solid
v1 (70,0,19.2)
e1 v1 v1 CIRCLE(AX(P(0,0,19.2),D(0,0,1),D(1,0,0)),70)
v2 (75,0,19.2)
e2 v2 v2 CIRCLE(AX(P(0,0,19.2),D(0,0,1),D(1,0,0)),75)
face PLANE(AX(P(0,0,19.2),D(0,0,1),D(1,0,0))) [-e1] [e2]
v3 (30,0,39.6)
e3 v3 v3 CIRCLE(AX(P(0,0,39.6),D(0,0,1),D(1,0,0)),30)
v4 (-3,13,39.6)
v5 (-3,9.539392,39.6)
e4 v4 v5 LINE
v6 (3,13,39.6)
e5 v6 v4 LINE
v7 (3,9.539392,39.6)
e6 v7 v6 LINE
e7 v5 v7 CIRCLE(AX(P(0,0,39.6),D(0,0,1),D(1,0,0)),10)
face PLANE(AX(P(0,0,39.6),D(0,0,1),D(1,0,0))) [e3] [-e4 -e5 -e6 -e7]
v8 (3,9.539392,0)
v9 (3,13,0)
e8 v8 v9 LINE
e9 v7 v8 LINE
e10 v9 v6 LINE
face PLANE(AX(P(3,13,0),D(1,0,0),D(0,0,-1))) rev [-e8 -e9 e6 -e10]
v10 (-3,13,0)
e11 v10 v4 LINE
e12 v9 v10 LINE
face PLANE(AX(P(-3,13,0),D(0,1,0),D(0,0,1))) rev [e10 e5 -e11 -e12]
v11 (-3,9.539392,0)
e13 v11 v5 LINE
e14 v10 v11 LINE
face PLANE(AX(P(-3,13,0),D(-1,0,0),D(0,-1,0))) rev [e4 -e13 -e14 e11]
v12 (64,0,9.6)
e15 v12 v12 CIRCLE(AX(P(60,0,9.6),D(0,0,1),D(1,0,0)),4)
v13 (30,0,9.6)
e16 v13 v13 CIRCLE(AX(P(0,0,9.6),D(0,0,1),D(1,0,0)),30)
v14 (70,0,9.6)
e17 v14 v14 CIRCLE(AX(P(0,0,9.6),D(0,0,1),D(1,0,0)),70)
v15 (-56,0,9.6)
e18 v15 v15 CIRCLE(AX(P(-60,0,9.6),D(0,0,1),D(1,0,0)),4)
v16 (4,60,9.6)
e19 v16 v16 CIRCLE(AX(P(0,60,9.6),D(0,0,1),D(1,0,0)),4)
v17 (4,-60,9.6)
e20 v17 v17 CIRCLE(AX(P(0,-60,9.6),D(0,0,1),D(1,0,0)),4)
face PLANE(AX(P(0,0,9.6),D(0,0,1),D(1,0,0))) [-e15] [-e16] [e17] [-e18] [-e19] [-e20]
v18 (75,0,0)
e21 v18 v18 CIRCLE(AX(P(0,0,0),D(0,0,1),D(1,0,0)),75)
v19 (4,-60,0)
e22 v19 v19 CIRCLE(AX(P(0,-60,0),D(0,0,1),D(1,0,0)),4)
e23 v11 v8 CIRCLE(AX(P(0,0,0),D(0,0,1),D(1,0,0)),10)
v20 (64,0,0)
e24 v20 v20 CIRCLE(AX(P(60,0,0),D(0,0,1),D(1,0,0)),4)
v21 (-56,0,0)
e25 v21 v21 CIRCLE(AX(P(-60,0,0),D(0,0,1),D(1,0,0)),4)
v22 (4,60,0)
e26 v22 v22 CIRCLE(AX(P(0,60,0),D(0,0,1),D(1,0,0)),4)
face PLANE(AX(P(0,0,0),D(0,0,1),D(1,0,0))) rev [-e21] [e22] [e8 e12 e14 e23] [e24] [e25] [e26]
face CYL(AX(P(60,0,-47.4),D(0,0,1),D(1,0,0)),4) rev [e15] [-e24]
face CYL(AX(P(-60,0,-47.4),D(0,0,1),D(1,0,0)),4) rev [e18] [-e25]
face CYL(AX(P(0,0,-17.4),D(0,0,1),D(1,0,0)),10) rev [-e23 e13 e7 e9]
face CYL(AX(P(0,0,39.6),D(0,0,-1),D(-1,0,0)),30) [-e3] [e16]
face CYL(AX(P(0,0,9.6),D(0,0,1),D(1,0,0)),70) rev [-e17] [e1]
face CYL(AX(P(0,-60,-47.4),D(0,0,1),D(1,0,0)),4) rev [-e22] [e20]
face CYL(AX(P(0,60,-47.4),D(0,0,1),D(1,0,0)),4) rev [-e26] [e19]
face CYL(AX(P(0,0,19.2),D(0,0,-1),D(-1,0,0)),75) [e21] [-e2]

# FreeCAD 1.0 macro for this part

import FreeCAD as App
import Part
import Sketcher
from FreeCAD import Vector


def add_polygon(sketch, points):
    """Adds a closed chain of lines whose ends are joined by coincident constraints."""
    first, n = sketch.GeometryCount, len(points)
    for a, b in zip(points, points[1:] + points[:1]):
        sketch.addGeometry(Part.LineSegment(App.Vector(*a, 0), App.Vector(*b, 0)), False)
    for i in range(n):
        sketch.addConstraint(Sketcher.Constraint("Coincident", first + i, 2, first + (i + 1) % n, 1))

doc = App.newDocument("Part")
params = doc.addObject("Spreadsheet::Sheet", "Params")
for row, (alias, value) in enumerate([
    ("sketch1_diameter", "150 mm"),
    ("pad1_length", "19.2 mm"),
    ("sketch2_diameter", "140 mm"),
    ("pocket1_length", "9.6 mm"),
    ("sketch3_diameter", "60 mm"),
    ("pad2_length", "30 mm"),
    ("sketch4_diameter", "20 mm"),
    ("pocket2_length", "57 mm"),
    ("sketch5_diameter", "8 mm"),
    ("pocket3_length", "57 mm"),
    ("sketch6_width", "6 mm"),
], start=1):
    params.set(f"A{row}", alias)
    params.set(f"B{row}", "=" + value)
    params.setAlias(f"B{row}", alias)

body = doc.addObject("PartDesign::Body", "Body")

sketch1 = doc.addObject("Sketcher::SketchObject", "Sketch")
body.addObject(sketch1)
sketch1.AttachmentSupport = (doc.XY_Plane, [""])
sketch1.MapMode = "FlatFace"
sketch1.addGeometry(Part.Circle(Vector(0, 0, 0), Vector(0, 0, 1), 75), False)
sketch1.addConstraint(Sketcher.Constraint("Coincident", 0, 3, -1, 1))
sketch1.addConstraint(Sketcher.Constraint("Diameter", 0, 150.0))
sketch1.setExpression("Constraints[1]", "Params.sketch1_diameter")
pad1 = doc.addObject("PartDesign::Pad", "Pad")
body.addObject(pad1)
pad1.Profile = sketch1
pad1.setExpression("Length", "Params.pad1_length")

sketch2 = doc.addObject("Sketcher::SketchObject", "Sketch001")
body.addObject(sketch2)
sketch2.AttachmentSupport = (doc.XY_Plane, [""])
sketch2.MapMode = "FlatFace"
sketch2.AttachmentOffset = App.Placement(Vector(0, 0, 19.2), App.Rotation())
sketch2.addGeometry(Part.Circle(Vector(0, 0, 0), Vector(0, 0, 1), 70), False)
sketch2.addConstraint(Sketcher.Constraint("Coincident", 0, 3, -1, 1))
sketch2.addConstraint(Sketcher.Constraint("Diameter", 0, 140.0))
sketch2.setExpression("Constraints[1]", "Params.sketch2_diameter")
pocket1 = doc.addObject("PartDesign::Pocket", "Pocket")
body.addObject(pocket1)
pocket1.Profile = sketch2
pocket1.setExpression("Length", "Params.pocket1_length")

sketch3 = doc.addObject("Sketcher::SketchObject", "Sketch002")
body.addObject(sketch3)
sketch3.AttachmentSupport = (doc.XY_Plane, [""])
sketch3.MapMode = "FlatFace"
sketch3.AttachmentOffset = App.Placement(Vector(0, 0, 9.6), App.Rotation())
sketch3.addGeometry(Part.Circle(Vector(0, 0, 0), Vector(0, 0, 1), 30), False)
sketch3.addConstraint(Sketcher.Constraint("Coincident", 0, 3, -1, 1))
sketch3.addConstraint(Sketcher.Constraint("Diameter", 0, 60.0))
sketch3.setExpression("Constraints[1]", "Params.sketch3_diameter")
pad2 = doc.addObject("PartDesign::Pad", "Pad001")
body.addObject(pad2)
pad2.Profile = sketch3
pad2.setExpression("Length", "Params.pad2_length")

sketch4 = doc.addObject("Sketcher::SketchObject", "Sketch003")
body.addObject(sketch4)
sketch4.AttachmentSupport = (doc.XY_Plane, [""])
sketch4.MapMode = "FlatFace"
sketch4.AttachmentOffset = App.Placement(Vector(0, 0, 39.6), App.Rotation())
sketch4.addGeometry(Part.Circle(Vector(0, 0, 0), Vector(0, 0, 1), 10), False)
sketch4.addConstraint(Sketcher.Constraint("Coincident", 0, 3, -1, 1))
sketch4.addConstraint(Sketcher.Constraint("Diameter", 0, 20.0))
sketch4.setExpression("Constraints[1]", "Params.sketch4_diameter")
pocket2 = doc.addObject("PartDesign::Pocket", "Pocket001")
body.addObject(pocket2)
pocket2.Profile = sketch4
pocket2.setExpression("Length", "Params.pocket2_length")

sketch5 = doc.addObject("Sketcher::SketchObject", "Sketch004")
body.addObject(sketch5)
sketch5.AttachmentSupport = (doc.XY_Plane, [""])
sketch5.MapMode = "FlatFace"
sketch5.AttachmentOffset = App.Placement(Vector(0, 0, 9.6), App.Rotation())
sketch5.addGeometry(Part.Circle(Vector(0, 60, 0), Vector(0, 0, 1), 4), False)
sketch5.addGeometry(Part.Circle(Vector(60, 0, 0), Vector(0, 0, 1), 4), False)
sketch5.addGeometry(Part.Circle(Vector(0, -60, 0), Vector(0, 0, 1), 4), False)
sketch5.addGeometry(Part.Circle(Vector(-60, 0, 0), Vector(0, 0, 1), 4), False)
sketch5.addConstraint(Sketcher.Constraint("Equal", 0, 1))
sketch5.addConstraint(Sketcher.Constraint("Equal", 1, 2))
sketch5.addConstraint(Sketcher.Constraint("Equal", 2, 3))
sketch5.addConstraint(Sketcher.Constraint("Symmetric", 0, 3, 2, 3, -1, 1))
sketch5.addConstraint(Sketcher.Constraint("Symmetric", 1, 3, 3, 3, -1, 1))
sketch5.addConstraint(Sketcher.Constraint("PointOnObject", 0, 3, -2))
sketch5.addConstraint(Sketcher.Constraint("PointOnObject", 1, 3, -1))
sketch5.addConstraint(Sketcher.Constraint("Diameter", 0, 8.0))
sketch5.addConstraint(Sketcher.Constraint("DistanceY", -1, 1, 0, 3, 60.0))
sketch5.addConstraint(Sketcher.Constraint("DistanceX", -1, 1, 1, 3, 60.0))
sketch5.setExpression("Constraints[7]", "Params.sketch5_diameter")
pocket3 = doc.addObject("PartDesign::Pocket", "Pocket002")
body.addObject(pocket3)
pocket3.Profile = sketch5
pocket3.setExpression("Length", "Params.pocket3_length")

sketch6 = doc.addObject("Sketcher::SketchObject", "Sketch005")
body.addObject(sketch6)
sketch6.AttachmentSupport = (doc.XY_Plane, [""])
sketch6.MapMode = "FlatFace"
sketch6.AttachmentOffset = App.Placement(Vector(0, 0, 39.6), App.Rotation())
add_polygon(sketch6, [(-3, 13), (-3, 7), (3, 7), (3, 13)])
sketch6.addConstraint(Sketcher.Constraint("Vertical", 0))
sketch6.addConstraint(Sketcher.Constraint("Horizontal", 1))
sketch6.addConstraint(Sketcher.Constraint("Vertical", 2))
sketch6.addConstraint(Sketcher.Constraint("Horizontal", 3))
sketch6.addConstraint(Sketcher.Constraint("Equal", 3, 0))
sketch6.addConstraint(Sketcher.Constraint("DistanceX", 1, 1, 1, 2, 6.0))
sketch6.addConstraint(Sketcher.Constraint("DistanceX", 0, 2, -1, 1, 3.0))
sketch6.addConstraint(Sketcher.Constraint("DistanceY", -1, 1, 0, 2, 7.0))
sketch6.setExpression("Constraints[9]", "Params.sketch6_width")
pocket4 = doc.addObject("PartDesign::Pocket", "Pocket003")
body.addObject(pocket4)
pocket4.Profile = sketch6
pocket4.Type = "ThroughAll"

doc.recompute()
